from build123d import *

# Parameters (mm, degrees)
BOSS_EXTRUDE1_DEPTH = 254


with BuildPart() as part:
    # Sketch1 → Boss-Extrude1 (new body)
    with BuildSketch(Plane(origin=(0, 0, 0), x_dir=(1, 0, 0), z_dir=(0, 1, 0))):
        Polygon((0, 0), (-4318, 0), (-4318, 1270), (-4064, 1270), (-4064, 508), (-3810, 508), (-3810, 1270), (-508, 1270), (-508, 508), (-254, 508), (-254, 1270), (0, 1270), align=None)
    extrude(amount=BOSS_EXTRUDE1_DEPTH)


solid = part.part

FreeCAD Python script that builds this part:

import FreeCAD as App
import Part
import Sketcher
Q = App.Units.Quantity

doc = App.newDocument("Part")
body = doc.addObject("PartDesign::Body", "Body")

# Sketch on XZ plane
sketch1 = body.newObject("Sketcher::SketchObject", "Sketch")
sketch1.AttachmentSupport = (doc.getObject("XZ_Plane"), [""])
sketch1.MapMode = "FlatFace"
sketch1.addGeometry([
    Part.LineSegment(App.Vector(-4318, 0, 0), App.Vector(0, 0, 0)),  # 0
    Part.LineSegment(App.Vector(0, 0, 0), App.Vector(0, -1270, 0)),  # 1
    Part.LineSegment(App.Vector(0, -1270, 0), App.Vector(-254, -1270, 0)),  # 2
    Part.LineSegment(App.Vector(-254, -1270, 0), App.Vector(-254, -508, 0)),  # 3
    Part.LineSegment(App.Vector(-254, -508, 0), App.Vector(-508, -508, 0)),  # 4
    Part.LineSegment(App.Vector(-508, -508, 0), App.Vector(-508, -1270, 0)),  # 5
    Part.LineSegment(App.Vector(-508, -1270, 0), App.Vector(-3810, -1270, 0)),  # 6
    Part.LineSegment(App.Vector(-3810, -1270, 0), App.Vector(-3810, -508, 0)),  # 7
    Part.LineSegment(App.Vector(-3810, -508, 0), App.Vector(-4064, -508, 0)),  # 8
    Part.LineSegment(App.Vector(-4064, -508, 0), App.Vector(-4064, -1270, 0)),  # 9
    Part.LineSegment(App.Vector(-4064, -1270, 0), App.Vector(-4318, -1270, 0)),  # 10
    Part.LineSegment(App.Vector(-4318, -1270, 0), App.Vector(-4318, 0, 0)),  # 11
], False)
sketch1.addConstraint([
    Sketcher.Constraint("Coincident", 0, 2, 1, 1),
    Sketcher.Constraint("Coincident", 1, 2, 2, 1),
    Sketcher.Constraint("Coincident", 2, 2, 3, 1),
    Sketcher.Constraint("Coincident", 3, 2, 4, 1),
    Sketcher.Constraint("Coincident", 4, 2, 5, 1),
    Sketcher.Constraint("Coincident", 5, 2, 6, 1),
    Sketcher.Constraint("Coincident", 6, 2, 7, 1),
    Sketcher.Constraint("Coincident", 7, 2, 8, 1),
    Sketcher.Constraint("Coincident", 8, 2, 9, 1),
    Sketcher.Constraint("Coincident", 9, 2, 10, 1),
    Sketcher.Constraint("Coincident", 10, 2, 11, 1),
    Sketcher.Constraint("Coincident", 11, 2, 0, 1),
    Sketcher.Constraint("Horizontal", 0),
    Sketcher.Constraint("Vertical", 1),
    Sketcher.Constraint("Horizontal", 2),
    Sketcher.Constraint("Vertical", 3),
    Sketcher.Constraint("Horizontal", 4),
    Sketcher.Constraint("Vertical", 5),
    Sketcher.Constraint("Horizontal", 6),
    Sketcher.Constraint("Vertical", 7),
    Sketcher.Constraint("Horizontal", 8),
    Sketcher.Constraint("Vertical", 9),
    Sketcher.Constraint("Horizontal", 10),
    Sketcher.Constraint("Vertical", 11),
    Sketcher.Constraint("Coincident", 0, 2, -1, 1),
    Sketcher.Constraint("Horizontal", 2, 2, 5, 2),
    Sketcher.Constraint("Horizontal", 4, 2, 7, 2),
    Sketcher.Constraint("Horizontal", 6, 2, 9, 2),
    Sketcher.Constraint("Equal", 2, 4),
    Sketcher.Constraint("Equal", 4, 8),
    Sketcher.Constraint("Equal", 8, 10),
    Sketcher.Constraint("DistanceX", 0, 1, 0, 2, Q("170 in")),
    Sketcher.Constraint("DistanceX", 2, 2, 2, 1, Q("10 in")),
    Sketcher.Constraint("DistanceY", 1, 2, 1, 1, Q("50 in")),
    Sketcher.Constraint("DistanceY", 3, 1, 3, 2, Q("30 in")),
])
pad1 = body.newObject("PartDesign::Pad", "Pad")
pad1.Profile = sketch1
pad1.Length = Q("10 in")
pad1.Reversed = True

doc.recompute()
